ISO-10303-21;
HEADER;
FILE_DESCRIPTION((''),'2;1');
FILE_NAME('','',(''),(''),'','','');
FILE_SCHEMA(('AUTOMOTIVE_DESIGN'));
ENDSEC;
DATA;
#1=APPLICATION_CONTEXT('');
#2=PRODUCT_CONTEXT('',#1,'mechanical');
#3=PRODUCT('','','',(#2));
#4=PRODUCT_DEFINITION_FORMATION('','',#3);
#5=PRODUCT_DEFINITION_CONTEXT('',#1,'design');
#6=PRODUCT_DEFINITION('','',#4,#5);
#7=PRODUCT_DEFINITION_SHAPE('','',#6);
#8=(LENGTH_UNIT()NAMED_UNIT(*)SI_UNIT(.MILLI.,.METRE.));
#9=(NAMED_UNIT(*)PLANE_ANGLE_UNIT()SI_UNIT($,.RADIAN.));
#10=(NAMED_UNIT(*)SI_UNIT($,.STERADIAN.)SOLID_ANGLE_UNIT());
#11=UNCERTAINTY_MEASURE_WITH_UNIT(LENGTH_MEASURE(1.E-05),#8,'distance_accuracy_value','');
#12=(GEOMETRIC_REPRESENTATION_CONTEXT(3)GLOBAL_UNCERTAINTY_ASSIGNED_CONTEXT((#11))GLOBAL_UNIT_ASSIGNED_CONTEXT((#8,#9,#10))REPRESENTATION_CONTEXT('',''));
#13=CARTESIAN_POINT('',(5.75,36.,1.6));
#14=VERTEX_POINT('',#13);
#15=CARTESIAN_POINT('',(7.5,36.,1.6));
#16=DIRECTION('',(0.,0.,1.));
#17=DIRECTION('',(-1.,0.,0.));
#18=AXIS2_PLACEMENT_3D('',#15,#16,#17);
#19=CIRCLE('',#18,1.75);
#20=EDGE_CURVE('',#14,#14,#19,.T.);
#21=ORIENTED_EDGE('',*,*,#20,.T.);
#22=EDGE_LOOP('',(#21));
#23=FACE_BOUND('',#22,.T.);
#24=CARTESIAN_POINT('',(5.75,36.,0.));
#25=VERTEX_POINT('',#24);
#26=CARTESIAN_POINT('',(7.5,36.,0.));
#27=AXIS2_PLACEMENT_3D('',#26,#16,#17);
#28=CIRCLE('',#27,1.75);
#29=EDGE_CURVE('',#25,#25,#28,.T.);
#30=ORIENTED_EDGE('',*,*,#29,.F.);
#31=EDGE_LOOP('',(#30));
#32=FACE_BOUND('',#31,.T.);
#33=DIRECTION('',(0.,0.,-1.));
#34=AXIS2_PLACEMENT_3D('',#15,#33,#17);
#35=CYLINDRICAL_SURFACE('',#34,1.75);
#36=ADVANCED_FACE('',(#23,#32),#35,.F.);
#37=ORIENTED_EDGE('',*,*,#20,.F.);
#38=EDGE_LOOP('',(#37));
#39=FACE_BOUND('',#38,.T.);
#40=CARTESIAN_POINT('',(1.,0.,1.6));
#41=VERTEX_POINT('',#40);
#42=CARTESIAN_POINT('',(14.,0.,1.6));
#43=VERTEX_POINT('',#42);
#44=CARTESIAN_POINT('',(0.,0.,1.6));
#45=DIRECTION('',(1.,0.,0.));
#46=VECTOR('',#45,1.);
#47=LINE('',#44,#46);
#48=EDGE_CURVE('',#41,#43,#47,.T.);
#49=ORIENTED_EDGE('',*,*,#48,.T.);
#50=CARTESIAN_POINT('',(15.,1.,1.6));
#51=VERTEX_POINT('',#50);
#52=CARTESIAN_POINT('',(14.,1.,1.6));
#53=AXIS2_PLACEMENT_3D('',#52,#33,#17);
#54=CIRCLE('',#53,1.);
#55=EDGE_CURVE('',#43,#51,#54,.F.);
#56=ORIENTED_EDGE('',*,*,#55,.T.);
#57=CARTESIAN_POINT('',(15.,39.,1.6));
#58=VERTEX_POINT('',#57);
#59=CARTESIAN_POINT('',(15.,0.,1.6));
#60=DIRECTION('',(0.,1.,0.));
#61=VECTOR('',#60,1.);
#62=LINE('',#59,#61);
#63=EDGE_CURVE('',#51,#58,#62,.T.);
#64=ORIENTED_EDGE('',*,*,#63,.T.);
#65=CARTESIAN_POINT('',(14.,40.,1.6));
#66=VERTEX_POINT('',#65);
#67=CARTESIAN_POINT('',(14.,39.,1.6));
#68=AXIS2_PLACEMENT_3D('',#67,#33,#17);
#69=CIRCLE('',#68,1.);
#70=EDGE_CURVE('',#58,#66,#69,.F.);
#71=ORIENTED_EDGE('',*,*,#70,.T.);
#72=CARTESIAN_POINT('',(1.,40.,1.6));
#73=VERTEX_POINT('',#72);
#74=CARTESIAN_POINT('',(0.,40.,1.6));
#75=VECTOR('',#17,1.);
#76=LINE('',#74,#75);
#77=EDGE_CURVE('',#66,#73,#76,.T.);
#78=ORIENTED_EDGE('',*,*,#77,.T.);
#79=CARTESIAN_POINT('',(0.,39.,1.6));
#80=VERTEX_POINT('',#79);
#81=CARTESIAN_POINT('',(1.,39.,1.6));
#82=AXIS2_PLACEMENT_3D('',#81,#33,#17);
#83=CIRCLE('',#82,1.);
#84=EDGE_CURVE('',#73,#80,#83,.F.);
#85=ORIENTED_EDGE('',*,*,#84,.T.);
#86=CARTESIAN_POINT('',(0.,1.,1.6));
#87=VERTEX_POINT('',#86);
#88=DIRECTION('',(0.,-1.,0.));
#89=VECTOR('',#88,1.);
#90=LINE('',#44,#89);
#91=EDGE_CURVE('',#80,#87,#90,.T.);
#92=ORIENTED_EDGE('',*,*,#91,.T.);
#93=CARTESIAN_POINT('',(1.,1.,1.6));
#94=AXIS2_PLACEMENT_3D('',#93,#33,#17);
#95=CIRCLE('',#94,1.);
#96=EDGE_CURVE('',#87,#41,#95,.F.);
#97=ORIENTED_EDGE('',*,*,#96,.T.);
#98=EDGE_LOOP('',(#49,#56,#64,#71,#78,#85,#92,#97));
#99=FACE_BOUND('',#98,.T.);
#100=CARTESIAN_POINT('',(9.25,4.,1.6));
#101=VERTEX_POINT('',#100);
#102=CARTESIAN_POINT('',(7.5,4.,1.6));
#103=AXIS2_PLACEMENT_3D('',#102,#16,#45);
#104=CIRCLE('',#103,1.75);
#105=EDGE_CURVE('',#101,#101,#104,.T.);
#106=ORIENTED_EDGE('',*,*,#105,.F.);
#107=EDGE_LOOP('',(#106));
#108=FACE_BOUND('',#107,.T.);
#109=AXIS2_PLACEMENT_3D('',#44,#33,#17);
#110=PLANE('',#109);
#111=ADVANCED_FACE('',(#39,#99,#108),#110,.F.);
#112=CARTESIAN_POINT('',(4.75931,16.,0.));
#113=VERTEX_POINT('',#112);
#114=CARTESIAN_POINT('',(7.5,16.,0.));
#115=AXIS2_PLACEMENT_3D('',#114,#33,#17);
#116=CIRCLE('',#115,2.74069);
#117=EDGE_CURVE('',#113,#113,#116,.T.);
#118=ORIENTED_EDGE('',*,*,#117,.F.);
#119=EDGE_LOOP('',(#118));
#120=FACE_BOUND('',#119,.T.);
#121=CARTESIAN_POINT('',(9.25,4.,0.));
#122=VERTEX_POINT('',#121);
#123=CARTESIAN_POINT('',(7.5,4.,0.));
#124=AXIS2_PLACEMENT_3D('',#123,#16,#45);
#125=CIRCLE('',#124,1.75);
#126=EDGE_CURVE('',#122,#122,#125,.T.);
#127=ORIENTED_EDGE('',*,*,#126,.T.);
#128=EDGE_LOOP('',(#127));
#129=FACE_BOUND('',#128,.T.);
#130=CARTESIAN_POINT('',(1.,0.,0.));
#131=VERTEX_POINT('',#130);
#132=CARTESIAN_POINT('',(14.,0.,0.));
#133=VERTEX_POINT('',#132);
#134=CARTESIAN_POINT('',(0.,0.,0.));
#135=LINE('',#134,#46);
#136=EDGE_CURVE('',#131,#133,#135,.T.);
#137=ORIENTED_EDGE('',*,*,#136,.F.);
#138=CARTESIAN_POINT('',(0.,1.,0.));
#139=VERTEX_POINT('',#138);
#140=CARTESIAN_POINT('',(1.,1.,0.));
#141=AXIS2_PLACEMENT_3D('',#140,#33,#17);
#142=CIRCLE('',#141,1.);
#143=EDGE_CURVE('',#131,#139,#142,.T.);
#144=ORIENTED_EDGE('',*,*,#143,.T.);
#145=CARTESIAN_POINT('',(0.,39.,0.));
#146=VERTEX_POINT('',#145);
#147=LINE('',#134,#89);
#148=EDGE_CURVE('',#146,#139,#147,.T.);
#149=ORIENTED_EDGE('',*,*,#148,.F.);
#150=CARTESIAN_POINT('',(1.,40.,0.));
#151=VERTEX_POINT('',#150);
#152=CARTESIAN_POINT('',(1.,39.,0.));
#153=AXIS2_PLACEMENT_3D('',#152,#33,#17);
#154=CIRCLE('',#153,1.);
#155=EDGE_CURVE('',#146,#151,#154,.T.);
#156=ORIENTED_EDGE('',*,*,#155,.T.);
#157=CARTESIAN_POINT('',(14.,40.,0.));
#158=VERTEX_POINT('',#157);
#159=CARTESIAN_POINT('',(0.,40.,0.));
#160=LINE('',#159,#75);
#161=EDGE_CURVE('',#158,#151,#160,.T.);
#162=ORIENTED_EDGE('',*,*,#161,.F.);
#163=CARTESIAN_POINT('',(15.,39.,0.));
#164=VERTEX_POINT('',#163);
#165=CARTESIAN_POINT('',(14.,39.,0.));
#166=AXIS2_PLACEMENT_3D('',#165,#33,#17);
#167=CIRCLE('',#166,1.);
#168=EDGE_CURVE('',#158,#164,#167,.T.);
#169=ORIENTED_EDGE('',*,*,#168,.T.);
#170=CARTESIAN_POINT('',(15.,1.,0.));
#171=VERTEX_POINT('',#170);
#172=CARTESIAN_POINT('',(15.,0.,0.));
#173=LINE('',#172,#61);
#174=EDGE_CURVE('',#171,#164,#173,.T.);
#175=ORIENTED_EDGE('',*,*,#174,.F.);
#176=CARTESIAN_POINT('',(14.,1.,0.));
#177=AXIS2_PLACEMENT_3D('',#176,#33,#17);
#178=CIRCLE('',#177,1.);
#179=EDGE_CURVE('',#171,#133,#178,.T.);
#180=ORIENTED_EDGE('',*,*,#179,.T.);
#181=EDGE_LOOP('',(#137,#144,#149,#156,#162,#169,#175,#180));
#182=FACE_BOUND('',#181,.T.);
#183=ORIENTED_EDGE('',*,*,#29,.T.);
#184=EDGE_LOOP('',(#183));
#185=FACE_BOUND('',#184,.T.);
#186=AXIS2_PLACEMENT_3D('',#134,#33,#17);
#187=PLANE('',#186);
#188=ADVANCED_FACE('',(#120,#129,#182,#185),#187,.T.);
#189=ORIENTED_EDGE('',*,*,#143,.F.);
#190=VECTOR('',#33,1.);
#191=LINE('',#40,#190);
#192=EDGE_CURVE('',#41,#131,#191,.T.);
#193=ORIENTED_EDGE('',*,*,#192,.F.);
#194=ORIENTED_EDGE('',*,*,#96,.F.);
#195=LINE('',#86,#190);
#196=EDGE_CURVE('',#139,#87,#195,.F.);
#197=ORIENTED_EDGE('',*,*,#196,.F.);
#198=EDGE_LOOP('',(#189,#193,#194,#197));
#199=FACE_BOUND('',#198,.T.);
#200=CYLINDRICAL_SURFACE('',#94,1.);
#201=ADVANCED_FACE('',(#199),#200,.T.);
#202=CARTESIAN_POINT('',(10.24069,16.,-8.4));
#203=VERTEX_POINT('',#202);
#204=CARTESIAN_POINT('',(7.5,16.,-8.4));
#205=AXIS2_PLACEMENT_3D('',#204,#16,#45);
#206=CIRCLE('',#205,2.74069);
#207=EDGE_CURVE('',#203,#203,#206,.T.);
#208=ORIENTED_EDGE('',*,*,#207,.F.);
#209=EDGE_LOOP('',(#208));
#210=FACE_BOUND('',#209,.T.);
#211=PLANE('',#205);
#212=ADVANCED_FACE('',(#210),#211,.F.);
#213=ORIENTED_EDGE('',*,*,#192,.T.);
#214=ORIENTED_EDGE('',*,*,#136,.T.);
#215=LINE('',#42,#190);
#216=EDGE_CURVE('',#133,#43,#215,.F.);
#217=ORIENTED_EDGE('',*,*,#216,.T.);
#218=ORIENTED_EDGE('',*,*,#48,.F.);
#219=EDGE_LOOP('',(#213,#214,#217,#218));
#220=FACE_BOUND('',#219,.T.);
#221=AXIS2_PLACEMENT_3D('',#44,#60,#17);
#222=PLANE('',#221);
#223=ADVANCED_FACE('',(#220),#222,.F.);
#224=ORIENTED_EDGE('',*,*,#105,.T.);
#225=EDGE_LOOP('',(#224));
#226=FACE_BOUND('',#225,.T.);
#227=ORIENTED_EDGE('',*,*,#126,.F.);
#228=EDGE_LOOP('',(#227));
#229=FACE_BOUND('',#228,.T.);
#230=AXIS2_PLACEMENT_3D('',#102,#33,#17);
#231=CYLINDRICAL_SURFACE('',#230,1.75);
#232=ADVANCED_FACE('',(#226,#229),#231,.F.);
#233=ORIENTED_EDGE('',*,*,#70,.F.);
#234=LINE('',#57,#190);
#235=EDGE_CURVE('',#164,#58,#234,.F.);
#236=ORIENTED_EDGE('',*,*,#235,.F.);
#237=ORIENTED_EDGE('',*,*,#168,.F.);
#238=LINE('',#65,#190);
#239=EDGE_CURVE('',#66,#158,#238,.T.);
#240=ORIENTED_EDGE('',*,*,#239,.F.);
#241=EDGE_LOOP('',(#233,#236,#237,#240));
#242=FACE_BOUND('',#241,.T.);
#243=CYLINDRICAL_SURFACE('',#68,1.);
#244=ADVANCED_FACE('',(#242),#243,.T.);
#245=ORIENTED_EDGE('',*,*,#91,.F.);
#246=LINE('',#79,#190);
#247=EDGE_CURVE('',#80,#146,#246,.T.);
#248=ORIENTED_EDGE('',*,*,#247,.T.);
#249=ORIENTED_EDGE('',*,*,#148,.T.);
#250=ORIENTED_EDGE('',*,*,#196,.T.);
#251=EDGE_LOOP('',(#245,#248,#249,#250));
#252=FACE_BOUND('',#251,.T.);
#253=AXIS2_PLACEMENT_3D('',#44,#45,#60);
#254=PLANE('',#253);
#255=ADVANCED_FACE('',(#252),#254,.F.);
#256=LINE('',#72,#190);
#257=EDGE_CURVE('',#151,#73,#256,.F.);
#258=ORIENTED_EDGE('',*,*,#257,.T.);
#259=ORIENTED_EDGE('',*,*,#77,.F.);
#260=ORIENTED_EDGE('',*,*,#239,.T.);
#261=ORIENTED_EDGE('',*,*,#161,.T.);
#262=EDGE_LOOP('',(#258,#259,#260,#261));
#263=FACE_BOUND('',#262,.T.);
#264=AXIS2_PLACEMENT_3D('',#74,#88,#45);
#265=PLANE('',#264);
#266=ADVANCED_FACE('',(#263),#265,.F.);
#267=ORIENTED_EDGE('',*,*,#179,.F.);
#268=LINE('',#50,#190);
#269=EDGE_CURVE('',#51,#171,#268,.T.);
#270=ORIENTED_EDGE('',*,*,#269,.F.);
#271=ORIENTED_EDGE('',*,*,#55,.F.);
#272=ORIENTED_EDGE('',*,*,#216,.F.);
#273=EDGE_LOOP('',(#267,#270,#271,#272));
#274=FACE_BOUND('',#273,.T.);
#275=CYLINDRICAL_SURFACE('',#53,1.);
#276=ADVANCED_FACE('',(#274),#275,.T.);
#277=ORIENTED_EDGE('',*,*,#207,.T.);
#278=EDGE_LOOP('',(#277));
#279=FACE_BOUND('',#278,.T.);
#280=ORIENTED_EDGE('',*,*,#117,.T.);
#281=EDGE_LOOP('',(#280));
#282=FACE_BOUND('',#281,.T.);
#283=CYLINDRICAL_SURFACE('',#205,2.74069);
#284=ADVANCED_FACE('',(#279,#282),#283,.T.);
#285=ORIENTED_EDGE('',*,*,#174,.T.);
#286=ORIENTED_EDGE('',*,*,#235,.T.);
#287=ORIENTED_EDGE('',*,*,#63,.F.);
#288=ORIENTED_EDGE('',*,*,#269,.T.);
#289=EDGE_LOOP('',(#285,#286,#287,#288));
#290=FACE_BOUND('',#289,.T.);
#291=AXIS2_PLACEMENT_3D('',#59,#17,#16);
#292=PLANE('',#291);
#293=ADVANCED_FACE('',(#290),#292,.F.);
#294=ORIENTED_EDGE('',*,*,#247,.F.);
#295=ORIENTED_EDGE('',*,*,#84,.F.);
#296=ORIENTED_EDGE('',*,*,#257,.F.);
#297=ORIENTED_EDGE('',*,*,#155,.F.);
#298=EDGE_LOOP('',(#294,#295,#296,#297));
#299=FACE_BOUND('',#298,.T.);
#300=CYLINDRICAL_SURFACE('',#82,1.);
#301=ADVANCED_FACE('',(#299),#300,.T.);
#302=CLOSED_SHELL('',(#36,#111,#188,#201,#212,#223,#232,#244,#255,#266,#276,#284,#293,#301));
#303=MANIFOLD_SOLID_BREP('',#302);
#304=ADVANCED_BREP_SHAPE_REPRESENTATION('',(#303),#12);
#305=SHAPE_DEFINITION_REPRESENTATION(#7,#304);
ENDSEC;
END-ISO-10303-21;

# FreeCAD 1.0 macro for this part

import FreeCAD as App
import Part
import Sketcher

V = App.Vector


def edges_at(feature, points):
    """Names of the edges that pass closest to the given points."""
    edges = feature.Shape.Edges
    near = lambda p: min(range(len(edges)), key=lambda i: edges[i].distToShape(Part.Vertex(*p))[0])
    return sorted({f"Edge{near(p) + 1}" for p in points})


def add_polygon(sketch, points):
    """Adds a closed chain of lines whose ends are joined by coincident constraints."""
    first, n = sketch.GeometryCount, len(points)
    for a, b in zip(points, points[1:] + points[:1]):
        sketch.addGeometry(Part.LineSegment(App.Vector(*a, 0), App.Vector(*b, 0)), False)
    for i in range(n):
        sketch.addConstraint(Sketcher.Constraint("Coincident", first + i, 2, first + (i + 1) % n, 1))

doc = App.newDocument("Part")
body = doc.addObject("PartDesign::Body", "Body")

sketch1 = body.newObject("Sketcher::SketchObject", "Sketch")
sketch1.AttachmentSupport = (doc.getObject("XY_Plane"), [""])
sketch1.MapMode = "FlatFace"
add_polygon(sketch1, [(0, 40), (0, 0), (15, 0), (15, 40)])
sketch1.addGeometry(Part.Circle(V(7.5, 4, 0), V(0, 0, 1), 1.8), False)
sketch1.addGeometry(Part.Circle(V(7.5, 36, 0), V(0, 0, 1), 1.8), False)
sketch1.addConstraint(Sketcher.Constraint("Vertical", 0))
sketch1.addConstraint(Sketcher.Constraint("Horizontal", 1))
sketch1.addConstraint(Sketcher.Constraint("Vertical", 2))
sketch1.addConstraint(Sketcher.Constraint("Horizontal", 3))
sketch1.addConstraint(Sketcher.Constraint("Coincident", 0, 2, -1, 1))
sketch1.addConstraint(Sketcher.Constraint("Equal", 4, 5))
sketch1.addConstraint(Sketcher.Constraint("Vertical", 4, 3, 5, 3))
sketch1.addConstraint(Sketcher.Constraint("Diameter", 4, 3.5))
sketch1.addConstraint(Sketcher.Constraint("DistanceX", 1, 1, 1, 2, 15.0))
sketch1.addConstraint(Sketcher.Constraint("DistanceY", 0, 2, 0, 1, 40.0))
sketch1.addConstraint(Sketcher.Constraint("DistanceY", -1, 1, 4, 3, 4.0))
sketch1.addConstraint(Sketcher.Constraint("DistanceY", -1, 1, 5, 3, 36.0))
sketch1.addConstraint(Sketcher.Constraint("DistanceX", -1, 1, 4, 3, 7.5))
pad1 = body.newObject("PartDesign::Pad", "Pad")
pad1.Profile = sketch1
pad1.Length = 1.6
doc.recompute()

fillet = body.newObject("PartDesign::Fillet", "Fillet")
fillet.Base = (pad1, edges_at(pad1, [
    (0, 40, 0.8),
    (15, 40, 0.8),
    (15, 0, 0.8),
    (0, 0, 0.8),
]))
fillet.Radius = 1

sketch2 = body.newObject("Sketcher::SketchObject", "Sketch001")
sketch2.AttachmentSupport = (doc.getObject("XY_Plane"), [""])
sketch2.MapMode = "FlatFace"
sketch2.AttachmentOffset = App.Placement(V(0, 0, 1.6), App.Rotation())
sketch2.addGeometry(Part.Circle(V(7.5, 16, 0), V(0, 0, 1), 2.7), False)
sketch2.addConstraint(Sketcher.Constraint("DistanceY", -1, 1, 0, 3, 16.0))
sketch2.addConstraint(Sketcher.Constraint("DistanceX", -1, 1, 0, 3, 7.5))
sketch2.addConstraint(Sketcher.Constraint("Diameter", 0, 5.48138))
pad2 = body.newObject("PartDesign::Pad", "Pad001")
pad2.Profile = sketch2
pad2.Length = 10
pad2.Reversed = True

doc.recompute()
